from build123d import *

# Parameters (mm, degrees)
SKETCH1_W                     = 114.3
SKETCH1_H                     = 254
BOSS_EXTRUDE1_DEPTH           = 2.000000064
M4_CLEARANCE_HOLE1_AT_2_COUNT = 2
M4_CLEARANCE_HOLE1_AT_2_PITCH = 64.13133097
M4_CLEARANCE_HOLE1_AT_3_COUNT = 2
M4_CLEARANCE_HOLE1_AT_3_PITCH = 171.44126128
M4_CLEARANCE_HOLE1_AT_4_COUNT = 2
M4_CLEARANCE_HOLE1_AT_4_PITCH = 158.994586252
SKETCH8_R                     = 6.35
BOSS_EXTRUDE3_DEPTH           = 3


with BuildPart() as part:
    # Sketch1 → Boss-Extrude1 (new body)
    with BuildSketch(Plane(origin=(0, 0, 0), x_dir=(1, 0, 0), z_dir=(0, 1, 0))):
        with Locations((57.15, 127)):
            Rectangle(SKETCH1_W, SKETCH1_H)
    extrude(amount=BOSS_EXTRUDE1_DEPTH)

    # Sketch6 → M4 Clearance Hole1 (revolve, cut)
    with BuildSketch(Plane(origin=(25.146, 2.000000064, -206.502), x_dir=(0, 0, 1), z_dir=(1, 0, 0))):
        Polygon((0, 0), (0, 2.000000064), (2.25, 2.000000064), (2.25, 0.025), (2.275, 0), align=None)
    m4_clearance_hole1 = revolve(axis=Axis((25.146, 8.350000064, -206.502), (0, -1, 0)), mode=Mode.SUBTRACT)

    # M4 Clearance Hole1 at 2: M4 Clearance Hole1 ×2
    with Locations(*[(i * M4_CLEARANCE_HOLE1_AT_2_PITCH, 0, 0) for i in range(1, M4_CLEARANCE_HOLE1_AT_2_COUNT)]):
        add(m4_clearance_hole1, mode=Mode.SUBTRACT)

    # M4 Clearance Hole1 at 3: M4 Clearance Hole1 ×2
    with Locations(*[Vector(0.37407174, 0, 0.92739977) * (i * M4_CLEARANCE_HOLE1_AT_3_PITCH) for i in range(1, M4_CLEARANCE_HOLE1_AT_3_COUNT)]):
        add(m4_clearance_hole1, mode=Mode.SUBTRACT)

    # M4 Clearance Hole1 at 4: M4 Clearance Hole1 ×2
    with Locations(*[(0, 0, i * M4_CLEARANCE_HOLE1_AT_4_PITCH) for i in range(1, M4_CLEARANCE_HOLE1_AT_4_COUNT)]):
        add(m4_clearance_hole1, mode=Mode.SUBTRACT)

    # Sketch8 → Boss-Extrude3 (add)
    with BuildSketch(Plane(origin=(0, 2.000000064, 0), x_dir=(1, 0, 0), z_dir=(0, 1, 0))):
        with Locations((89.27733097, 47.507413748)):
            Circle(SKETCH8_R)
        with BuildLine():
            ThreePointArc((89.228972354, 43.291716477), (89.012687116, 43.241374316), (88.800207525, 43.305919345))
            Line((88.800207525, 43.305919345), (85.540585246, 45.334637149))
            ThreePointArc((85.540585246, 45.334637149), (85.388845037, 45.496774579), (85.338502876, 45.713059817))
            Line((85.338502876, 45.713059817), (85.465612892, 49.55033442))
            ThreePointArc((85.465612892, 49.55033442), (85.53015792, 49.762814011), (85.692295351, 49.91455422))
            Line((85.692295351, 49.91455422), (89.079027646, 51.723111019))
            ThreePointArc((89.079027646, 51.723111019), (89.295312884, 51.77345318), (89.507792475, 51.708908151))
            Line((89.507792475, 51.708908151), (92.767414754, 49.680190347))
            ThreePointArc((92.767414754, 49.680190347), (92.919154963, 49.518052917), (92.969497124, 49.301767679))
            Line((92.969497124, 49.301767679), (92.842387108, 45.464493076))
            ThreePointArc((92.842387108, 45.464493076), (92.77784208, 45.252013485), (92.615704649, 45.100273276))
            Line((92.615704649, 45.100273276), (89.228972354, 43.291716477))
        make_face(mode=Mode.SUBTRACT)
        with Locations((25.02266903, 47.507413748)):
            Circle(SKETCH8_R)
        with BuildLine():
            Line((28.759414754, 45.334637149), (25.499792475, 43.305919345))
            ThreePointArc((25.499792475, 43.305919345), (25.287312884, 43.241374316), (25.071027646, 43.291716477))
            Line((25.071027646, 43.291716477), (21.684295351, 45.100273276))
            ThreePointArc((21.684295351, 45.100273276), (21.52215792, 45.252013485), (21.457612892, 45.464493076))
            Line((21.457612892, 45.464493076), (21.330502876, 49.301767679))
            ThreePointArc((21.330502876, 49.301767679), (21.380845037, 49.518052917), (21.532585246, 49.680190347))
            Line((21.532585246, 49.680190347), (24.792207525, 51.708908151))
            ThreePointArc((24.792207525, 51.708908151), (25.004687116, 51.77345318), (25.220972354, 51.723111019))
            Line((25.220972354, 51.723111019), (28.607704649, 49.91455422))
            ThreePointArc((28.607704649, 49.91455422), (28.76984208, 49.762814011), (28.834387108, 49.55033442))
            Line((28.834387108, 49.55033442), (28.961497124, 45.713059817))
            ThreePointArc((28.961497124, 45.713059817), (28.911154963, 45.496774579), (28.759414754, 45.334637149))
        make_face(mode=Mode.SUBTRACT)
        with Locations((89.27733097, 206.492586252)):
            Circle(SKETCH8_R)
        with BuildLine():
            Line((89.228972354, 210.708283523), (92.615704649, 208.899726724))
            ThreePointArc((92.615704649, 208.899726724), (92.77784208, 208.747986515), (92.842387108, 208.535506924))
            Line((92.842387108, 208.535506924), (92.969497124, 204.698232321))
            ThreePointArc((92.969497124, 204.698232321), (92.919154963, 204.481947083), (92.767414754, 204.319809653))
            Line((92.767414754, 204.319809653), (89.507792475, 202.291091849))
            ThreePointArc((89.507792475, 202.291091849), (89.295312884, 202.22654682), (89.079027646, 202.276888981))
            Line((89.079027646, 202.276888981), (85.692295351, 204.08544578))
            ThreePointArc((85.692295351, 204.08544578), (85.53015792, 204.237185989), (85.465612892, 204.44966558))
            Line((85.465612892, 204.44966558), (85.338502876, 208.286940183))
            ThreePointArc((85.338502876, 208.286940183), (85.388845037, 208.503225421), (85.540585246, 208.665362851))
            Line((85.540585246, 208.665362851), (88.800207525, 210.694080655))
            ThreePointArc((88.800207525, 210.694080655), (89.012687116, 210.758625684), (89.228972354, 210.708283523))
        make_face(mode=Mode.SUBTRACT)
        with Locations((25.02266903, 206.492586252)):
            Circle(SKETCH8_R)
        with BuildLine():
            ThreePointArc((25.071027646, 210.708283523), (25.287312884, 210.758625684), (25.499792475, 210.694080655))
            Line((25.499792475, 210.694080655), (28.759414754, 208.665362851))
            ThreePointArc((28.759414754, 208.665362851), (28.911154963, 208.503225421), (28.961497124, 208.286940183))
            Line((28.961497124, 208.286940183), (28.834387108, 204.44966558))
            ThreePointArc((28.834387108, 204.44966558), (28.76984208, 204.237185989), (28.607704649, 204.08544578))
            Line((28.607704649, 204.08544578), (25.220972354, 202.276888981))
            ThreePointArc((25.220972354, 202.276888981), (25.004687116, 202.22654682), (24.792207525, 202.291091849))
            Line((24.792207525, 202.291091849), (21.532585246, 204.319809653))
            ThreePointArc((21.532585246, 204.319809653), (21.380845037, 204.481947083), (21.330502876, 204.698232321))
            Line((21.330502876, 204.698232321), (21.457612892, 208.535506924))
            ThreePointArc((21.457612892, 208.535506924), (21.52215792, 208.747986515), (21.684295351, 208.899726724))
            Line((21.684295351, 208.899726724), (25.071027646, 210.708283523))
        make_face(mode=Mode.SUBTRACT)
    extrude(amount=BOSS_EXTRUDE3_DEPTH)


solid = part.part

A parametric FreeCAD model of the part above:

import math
import FreeCAD as App
import Part
import Sketcher
from FreeCAD import Vector
Q = App.Units.Quantity

doc = App.newDocument("Part")
body = doc.addObject("PartDesign::Body", "Body")

sketch1 = body.newObject("Sketcher::SketchObject", "Sketch")
sketch1.AttachmentSupport = (doc.getObject("XZ_Plane"), [""])
sketch1.MapMode = "FlatFace"
sketch1.addGeometry([
    Part.LineSegment(Vector(0, -254, 0), Vector(0, 0, 0)),
    Part.LineSegment(Vector(0, 0, 0), Vector(114, 0, 0)),
    Part.LineSegment(Vector(114, 0, 0), Vector(114, -254, 0)),
    Part.LineSegment(Vector(114, -254, 0), Vector(0, -254, 0)),
], False)
sketch1.addConstraint([
    Sketcher.Constraint("Coincident", 0, 2, 1, 1),
    Sketcher.Constraint("Coincident", 1, 2, 2, 1),
    Sketcher.Constraint("Coincident", 2, 2, 3, 1),
    Sketcher.Constraint("Coincident", 3, 2, 0, 1),
    Sketcher.Constraint("Vertical", 0),
    Sketcher.Constraint("Horizontal", 1),
    Sketcher.Constraint("Vertical", 2),
    Sketcher.Constraint("Horizontal", 3),
    Sketcher.Constraint("Coincident", 0, 2, -1, 1),
    Sketcher.Constraint("DistanceY", 0, 1, 0, 2, Q("10 in")),
    Sketcher.Constraint("DistanceX", 1, 1, 1, 2, Q("4.5 in")),
])
pad1 = body.newObject("PartDesign::Pad", "Pad")
pad1.Profile = sketch1
pad1.Length = 2
pad1.Reversed = True

sketch2 = body.newObject("Sketcher::SketchObject", "Sketch001")
sketch2.AttachmentSupport = (doc.getObject("YZ_Plane"), [""])
sketch2.MapMode = "FlatFace"
sketch2.AttachmentOffset = App.Placement(Vector(0, 0, 0.99 * 25.4), App.Rotation())
sketch2.addGeometry([
    Part.LineSegment(Vector(0, -206.502, 0), Vector(2, -206.502, 0)),
    Part.LineSegment(Vector(2, -206.502, 0), Vector(2, -204.227, 0)),
    Part.LineSegment(Vector(2, -204.227, 0), Vector(1.975, -204.252, 0)),
    Part.LineSegment(Vector(1.975, -204.252, 0), Vector(0, -204.252, 0)),
    Part.LineSegment(Vector(0, -204.252, 0), Vector(0, -206.502, 0)),
], False)
sketch2.addGeometry(Part.LineSegment(Vector(2, -206.502, 0), Vector(0, -206.502, 0)), True)
sketch2.addConstraint([
    Sketcher.Constraint("Coincident", 0, 2, 1, 1),
    Sketcher.Constraint("Coincident", 1, 2, 2, 1),
    Sketcher.Constraint("Coincident", 2, 2, 3, 1),
    Sketcher.Constraint("Coincident", 3, 2, 4, 1),
    Sketcher.Constraint("Coincident", 4, 2, 0, 1),
    Sketcher.Constraint("Horizontal", 0),
    Sketcher.Constraint("Vertical", 1),
    Sketcher.Constraint("Horizontal", 3),
    Sketcher.Constraint("Vertical", 4),
    Sketcher.Constraint("Horizontal", 5),
    Sketcher.Constraint("Coincident", 5, 1, 0, 2),
    Sketcher.Constraint("PointOnObject", 3, 2, -2),
    Sketcher.Constraint("PointOnObject", 5, 2, -2),
    Sketcher.Constraint("Angle", 2, Q("-135 deg")),
    Sketcher.Constraint("DistanceY", 0, 2, -1, 1, Q("8.13 in")),
    Sketcher.Constraint("DistanceX", 0, 1, 0, 2, Q("2 mm")),
    Sketcher.Constraint("DistanceX", 3, 2, 3, 1, Q("1.975 mm")),
    Sketcher.Constraint("DistanceY", 1, 1, 1, 2, Q("2.275 mm")),
])
groove = body.newObject("PartDesign::Groove", "Groove")
groove.Profile = sketch2
groove.ReferenceAxis = (sketch2, ["Axis0"])
groove.Angle = 360
doc.recompute()

linearpattern = body.newObject("PartDesign::LinearPattern", "LinearPattern")
linearpattern.Originals = [groove]
linearpattern.Direction = (doc.getObject("X_Axis"), [""])
linearpattern.Mode = "offset"
linearpattern.Offset = 64.131331
linearpattern.Occurrences = 2
body.Tip = linearpattern
doc.recompute()

datumline = body.newObject("PartDesign::Line", "DatumLine")
datumline.Placement = App.Placement(Vector(0, 0, 0), App.Rotation(Vector(0, 0, 1), Vector(0.37407174, 0, 0.92739977)))
linearpattern2 = body.newObject("PartDesign::LinearPattern", "LinearPattern001")
linearpattern2.Originals = [groove]
linearpattern2.Direction = (datumline, [""])
linearpattern2.Mode = "offset"
linearpattern2.Offset = 171.441261
linearpattern2.Occurrences = 2
body.Tip = linearpattern2
doc.recompute()

linearpattern3 = body.newObject("PartDesign::LinearPattern", "LinearPattern002")
linearpattern3.Originals = [groove]
linearpattern3.Direction = (doc.getObject("Z_Axis"), [""])
linearpattern3.Mode = "offset"
linearpattern3.Offset = 158.994586
linearpattern3.Occurrences = 2
body.Tip = linearpattern3

sketch3 = body.newObject("Sketcher::SketchObject", "Sketch002")
sketch3.AttachmentSupport = (doc.getObject("XZ_Plane"), [""])
sketch3.MapMode = "FlatFace"
sketch3.AttachmentOffset = App.Placement(Vector(0, 0, -2), App.Rotation())
sketch3.addGeometry([
    Part.Circle(Vector(89.28, -47.51, 0), Vector(0, 0, 1), 6.35),
    Part.LineSegment(Vector(92.62, -45.1, 0), Vector(89.23, -43.29, 0)),
    Part.ArcOfCircle(Part.Circle(Vector(89.03, -43.67, 0), Vector(0, 0, 1), 0.43), math.radians(62), math.radians(122)),
    Part.LineSegment(Vector(88.8, -43.31, 0), Vector(85.54, -45.33, 0)),
    Part.ArcOfCircle(Part.Circle(Vector(85.77, -45.7, 0), Vector(0, 0, 1), 0.43), math.radians(122), math.radians(182)),
    Part.LineSegment(Vector(85.34, -45.71, 0), Vector(85.47, -49.55, 0)),
    Part.ArcOfCircle(Part.Circle(Vector(85.89, -49.54, 0), Vector(0, 0, 1), 0.43), math.radians(-178), math.radians(-118)),
    Part.LineSegment(Vector(85.69, -49.91, 0), Vector(89.08, -51.72, 0)),
    Part.ArcOfCircle(Part.Circle(Vector(89.28, -51.34, 0), Vector(0, 0, 1), 0.43), math.radians(-118), math.radians(-58)),
    Part.LineSegment(Vector(89.51, -51.71, 0), Vector(92.77, -49.68, 0)),
    Part.ArcOfCircle(Part.Circle(Vector(92.54, -49.32, 0), Vector(0, 0, 1), 0.43), math.radians(-58), math.radians(2)),
    Part.LineSegment(Vector(92.97, -49.3, 0), Vector(92.84, -45.46, 0)),
    Part.ArcOfCircle(Part.Circle(Vector(92.41, -45.48, 0), Vector(0, 0, 1), 0.43), math.radians(2), math.radians(62)),
    Part.Circle(Vector(25.02, -47.51, 0), Vector(0, 0, 1), 6.35),
    Part.ArcOfCircle(Part.Circle(Vector(28.53, -45.7, 0), Vector(0, 0, 1), 0.43), math.radians(-2), math.radians(58)),
    Part.LineSegment(Vector(28.76, -45.33, 0), Vector(25.5, -43.31, 0)),
    Part.ArcOfCircle(Part.Circle(Vector(25.27, -43.67, 0), Vector(0, 0, 1), 0.43), math.radians(58), math.radians(118)),
    Part.LineSegment(Vector(25.07, -43.29, 0), Vector(21.68, -45.1, 0)),
    Part.ArcOfCircle(Part.Circle(Vector(21.89, -45.48, 0), Vector(0, 0, 1), 0.43), math.radians(118), math.radians(178)),
    Part.LineSegment(Vector(21.46, -45.46, 0), Vector(21.33, -49.3, 0)),
    Part.ArcOfCircle(Part.Circle(Vector(21.76, -49.32, 0), Vector(0, 0, 1), 0.43), math.radians(178), math.radians(238)),
    Part.LineSegment(Vector(21.53, -49.68, 0), Vector(24.79, -51.71, 0)),
    Part.ArcOfCircle(Part.Circle(Vector(25.02, -51.34, 0), Vector(0, 0, 1), 0.43), math.radians(-122), math.radians(-62)),
    Part.LineSegment(Vector(25.22, -51.72, 0), Vector(28.61, -49.91, 0)),
    Part.ArcOfCircle(Part.Circle(Vector(28.41, -49.54, 0), Vector(0, 0, 1), 0.43), math.radians(-62), math.radians(-2)),
    Part.LineSegment(Vector(28.83, -49.55, 0), Vector(28.96, -45.71, 0)),
    Part.Circle(Vector(89.28, -206.49, 0), Vector(0, 0, 1), 6.35),
    Part.ArcOfCircle(Part.Circle(Vector(89.03, -210.33, 0), Vector(0, 0, 1), 0.43), math.radians(-122), math.radians(-62)),
    Part.LineSegment(Vector(89.23, -210.71, 0), Vector(92.62, -208.9, 0)),
    Part.ArcOfCircle(Part.Circle(Vector(92.41, -208.52, 0), Vector(0, 0, 1), 0.43), math.radians(-62), math.radians(-2)),
    Part.LineSegment(Vector(92.84, -208.54, 0), Vector(92.97, -204.7, 0)),
    Part.ArcOfCircle(Part.Circle(Vector(92.54, -204.68, 0), Vector(0, 0, 1), 0.43), math.radians(-2), math.radians(58)),
    Part.LineSegment(Vector(92.77, -204.32, 0), Vector(89.51, -202.29, 0)),
    Part.ArcOfCircle(Part.Circle(Vector(89.28, -202.66, 0), Vector(0, 0, 1), 0.43), math.radians(58), math.radians(118)),
    Part.LineSegment(Vector(89.08, -202.28, 0), Vector(85.69, -204.09, 0)),
    Part.ArcOfCircle(Part.Circle(Vector(85.89, -204.46, 0), Vector(0, 0, 1), 0.43), math.radians(118), math.radians(178)),
    Part.LineSegment(Vector(85.47, -204.45, 0), Vector(85.34, -208.29, 0)),
    Part.ArcOfCircle(Part.Circle(Vector(85.77, -208.3, 0), Vector(0, 0, 1), 0.43), math.radians(178), math.radians(238)),
    Part.LineSegment(Vector(85.54, -208.67, 0), Vector(88.8, -210.69, 0)),
    Part.Circle(Vector(25.02, -206.49, 0), Vector(0, 0, 1), 6.35),
    Part.LineSegment(Vector(21.68, -208.9, 0), Vector(25.07, -210.71, 0)),
    Part.ArcOfCircle(Part.Circle(Vector(25.27, -210.33, 0), Vector(0, 0, 1), 0.43), math.radians(-118), math.radians(-58)),
    Part.LineSegment(Vector(25.5, -210.69, 0), Vector(28.76, -208.67, 0)),
    Part.ArcOfCircle(Part.Circle(Vector(28.53, -208.3, 0), Vector(0, 0, 1), 0.43), math.radians(-58), math.radians(2)),
    Part.LineSegment(Vector(28.96, -208.29, 0), Vector(28.83, -204.45, 0)),
    Part.ArcOfCircle(Part.Circle(Vector(28.41, -204.46, 0), Vector(0, 0, 1), 0.43), math.radians(2), math.radians(62)),
    Part.LineSegment(Vector(28.61, -204.09, 0), Vector(25.22, -202.28, 0)),
    Part.ArcOfCircle(Part.Circle(Vector(25.02, -202.66, 0), Vector(0, 0, 1), 0.43), math.radians(62), math.radians(122)),
    Part.LineSegment(Vector(24.79, -202.29, 0), Vector(21.53, -204.32, 0)),
    Part.ArcOfCircle(Part.Circle(Vector(21.76, -204.68, 0), Vector(0, 0, 1), 0.43), math.radians(122), math.radians(182)),
    Part.LineSegment(Vector(21.33, -204.7, 0), Vector(21.46, -208.54, 0)),
    Part.ArcOfCircle(Part.Circle(Vector(21.89, -208.52, 0), Vector(0, 0, 1), 0.43), math.radians(-178), math.radians(-118)),
], False)
sketch3.addConstraint([
    Sketcher.Constraint("Tangent", 1, 2, 2, 1),
    Sketcher.Constraint("Tangent", 2, 2, 3, 1),
    Sketcher.Constraint("Tangent", 3, 2, 4, 1),
    Sketcher.Constraint("Tangent", 4, 2, 5, 1),
    Sketcher.Constraint("Tangent", 5, 2, 6, 1),
    Sketcher.Constraint("Tangent", 6, 2, 7, 1),
    Sketcher.Constraint("Tangent", 7, 2, 8, 1),
    Sketcher.Constraint("Tangent", 8, 2, 9, 1),
    Sketcher.Constraint("Tangent", 9, 2, 10, 1),
    Sketcher.Constraint("Tangent", 10, 2, 11, 1),
    Sketcher.Constraint("Tangent", 11, 2, 12, 1),
    Sketcher.Constraint("Tangent", 12, 2, 1, 1),
    Sketcher.Constraint("Tangent", 14, 2, 15, 1),
    Sketcher.Constraint("Tangent", 15, 2, 16, 1),
    Sketcher.Constraint("Tangent", 16, 2, 17, 1),
    Sketcher.Constraint("Tangent", 17, 2, 18, 1),
    Sketcher.Constraint("Tangent", 18, 2, 19, 1),
    Sketcher.Constraint("Tangent", 19, 2, 20, 1),
    Sketcher.Constraint("Tangent", 20, 2, 21, 1),
    Sketcher.Constraint("Tangent", 21, 2, 22, 1),
    Sketcher.Constraint("Tangent", 22, 2, 23, 1),
    Sketcher.Constraint("Tangent", 23, 2, 24, 1),
    Sketcher.Constraint("Tangent", 24, 2, 25, 1),
    Sketcher.Constraint("Tangent", 25, 2, 14, 1),
    Sketcher.Constraint("Tangent", 27, 2, 28, 1),
    Sketcher.Constraint("Tangent", 28, 2, 29, 1),
    Sketcher.Constraint("Tangent", 29, 2, 30, 1),
    Sketcher.Constraint("Tangent", 30, 2, 31, 1),
    Sketcher.Constraint("Tangent", 31, 2, 32, 1),
    Sketcher.Constraint("Tangent", 32, 2, 33, 1),
    Sketcher.Constraint("Tangent", 33, 2, 34, 1),
    Sketcher.Constraint("Tangent", 34, 2, 35, 1),
    Sketcher.Constraint("Tangent", 35, 2, 36, 1),
    Sketcher.Constraint("Tangent", 36, 2, 37, 1),
    Sketcher.Constraint("Tangent", 37, 2, 38, 1),
    Sketcher.Constraint("Tangent", 38, 2, 27, 1),
    Sketcher.Constraint("Tangent", 40, 2, 41, 1),
    Sketcher.Constraint("Tangent", 41, 2, 42, 1),
    Sketcher.Constraint("Tangent", 42, 2, 43, 1),
    Sketcher.Constraint("Tangent", 43, 2, 44, 1),
    Sketcher.Constraint("Tangent", 44, 2, 45, 1),
    Sketcher.Constraint("Tangent", 45, 2, 46, 1),
    Sketcher.Constraint("Tangent", 46, 2, 47, 1),
    Sketcher.Constraint("Tangent", 47, 2, 48, 1),
    Sketcher.Constraint("Tangent", 48, 2, 49, 1),
    Sketcher.Constraint("Tangent", 49, 2, 50, 1),
    Sketcher.Constraint("Tangent", 50, 2, 51, 1),
    Sketcher.Constraint("Tangent", 51, 2, 40, 1),
    Sketcher.Constraint("Equal", 2, 4),
    Sketcher.Constraint("Equal", 4, 6),
    Sketcher.Constraint("Equal", 6, 8),
    Sketcher.Constraint("Equal", 8, 10),
    Sketcher.Constraint("Equal", 10, 12),
    Sketcher.Constraint("Equal", 0, 13),
    Sketcher.Constraint("Equal", 12, 14),
    Sketcher.Constraint("Equal", 14, 16),
    Sketcher.Constraint("Equal", 16, 18),
    Sketcher.Constraint("Equal", 18, 20),
    Sketcher.Constraint("Equal", 20, 22),
    Sketcher.Constraint("Equal", 22, 24),
    Sketcher.Constraint("Equal", 13, 26),
    Sketcher.Constraint("Equal", 24, 27),
    Sketcher.Constraint("Equal", 27, 29),
    Sketcher.Constraint("Equal", 29, 31),
    Sketcher.Constraint("Equal", 31, 33),
    Sketcher.Constraint("Equal", 33, 35),
    Sketcher.Constraint("Equal", 35, 37),
    Sketcher.Constraint("Equal", 26, 39),
    Sketcher.Constraint("Equal", 37, 41),
    Sketcher.Constraint("Equal", 41, 43),
    Sketcher.Constraint("Equal", 43, 45),
    Sketcher.Constraint("Equal", 45, 47),
    Sketcher.Constraint("Equal", 47, 49),
    Sketcher.Constraint("Equal", 49, 51),
    Sketcher.Constraint("Parallel", 1, 7),
    Sketcher.Constraint("Parallel", 3, 9),
    Sketcher.Constraint("Parallel", 5, 11),
    Sketcher.Constraint("Parallel", 15, 21),
    Sketcher.Constraint("Parallel", 17, 23),
    Sketcher.Constraint("Parallel", 19, 25),
    Sketcher.Constraint("Parallel", 23, 28),
    Sketcher.Constraint("Parallel", 25, 30),
    Sketcher.Constraint("Parallel", 21, 32),
    Sketcher.Constraint("Parallel", 28, 34),
    Sketcher.Constraint("Parallel", 30, 36),
    Sketcher.Constraint("Parallel", 32, 38),
    Sketcher.Constraint("Parallel", 7, 40),
    Sketcher.Constraint("Parallel", 9, 42),
    Sketcher.Constraint("Parallel", 11, 44),
    Sketcher.Constraint("Parallel", 40, 46),
    Sketcher.Constraint("Parallel", 42, 48),
    Sketcher.Constraint("Parallel", 44, 50),
    Sketcher.Constraint("Horizontal", 0, 3, 13, 3),
    Sketcher.Constraint("Horizontal", 4, 3, 14, 3),
    Sketcher.Constraint("Horizontal", 2, 3, 16, 3),
    Sketcher.Constraint("Horizontal", 12, 3, 18, 3),
    Sketcher.Constraint("Horizontal", 10, 3, 20, 3),
    Sketcher.Constraint("Horizontal", 8, 3, 22, 3),
    Sketcher.Constraint("Horizontal", 26, 3, 39, 3),
    Sketcher.Constraint("Horizontal", 27, 3, 41, 3),
    Sketcher.Constraint("Horizontal", 37, 3, 43, 3),
    Sketcher.Constraint("Horizontal", 35, 3, 45, 3),
    Sketcher.Constraint("Horizontal", 33, 3, 47, 3),
    Sketcher.Constraint("Horizontal", 31, 3, 49, 3),
    Sketcher.Constraint("Horizontal", 3, 2, 14, 2),
    Sketcher.Constraint("Horizontal", 1, 2, 16, 2),
    Sketcher.Constraint("Horizontal", 11, 2, 18, 2),
    Sketcher.Constraint("Vertical", 0, 3, 26, 3),
    Sketcher.Constraint("Vertical", 2, 3, 27, 3),
    Sketcher.Constraint("Vertical", 12, 3, 29, 3),
    Sketcher.Constraint("Vertical", 10, 3, 31, 3),
    Sketcher.Constraint("Vertical", 8, 3, 33, 3),
    Sketcher.Constraint("Vertical", 6, 3, 35, 3),
    Sketcher.Constraint("Vertical", 13, 3, 39, 3),
    Sketcher.Constraint("Vertical", 16, 3, 41, 3),
    Sketcher.Constraint("Equal", 1, 3),
    Sketcher.Constraint("Equal", 3, 5),
    Sketcher.Constraint("Equal", 5, 7),
    Sketcher.Constraint("Diameter", 0, Q("0.5 in")),
    Sketcher.Constraint("Radius", 2, Q("0.429 mm")),
    Sketcher.Constraint("DistanceY", 12, 3, -1, 1, Q("1.7904998 in")),
    Sketcher.Constraint("DistanceY", 29, 3, -1, 1, Q("8.2095002 in")),
    Sketcher.Constraint("Distance", 1, Q("3.839379 mm")),
    Sketcher.Constraint("DistanceX", -1, 1, 0, 3, Q("89.277331 mm")),
    Sketcher.Constraint("DistanceX", -1, 1, 2, 3, Q("89.02689 mm")),
    Sketcher.Constraint("DistanceY", 2, 3, -1, 1, Q("43.670139 mm")),
    Sketcher.Constraint("DistanceY", 6, 3, -1, 1, Q("49.536132 mm")),
    Sketcher.Constraint("DistanceX", -1, 1, 8, 3, Q("89.28111 mm")),
    Sketcher.Constraint("DistanceX", -1, 1, 13, 3, Q("25.022669 mm")),
    Sketcher.Constraint("DistanceX", -1, 1, 16, 3, Q("25.27311 mm")),
    Sketcher.Constraint("DistanceY", 0, 3, -1, 1, Q("47.507414 mm")),
    Sketcher.Constraint("DistanceY", 26, 3, -1, 1, Q("206.492586 mm")),
])
pad2 = body.newObject("PartDesign::Pad", "Pad001")
pad2.Profile = sketch3
pad2.Length = 3
pad2.Reversed = True

doc.recompute()
